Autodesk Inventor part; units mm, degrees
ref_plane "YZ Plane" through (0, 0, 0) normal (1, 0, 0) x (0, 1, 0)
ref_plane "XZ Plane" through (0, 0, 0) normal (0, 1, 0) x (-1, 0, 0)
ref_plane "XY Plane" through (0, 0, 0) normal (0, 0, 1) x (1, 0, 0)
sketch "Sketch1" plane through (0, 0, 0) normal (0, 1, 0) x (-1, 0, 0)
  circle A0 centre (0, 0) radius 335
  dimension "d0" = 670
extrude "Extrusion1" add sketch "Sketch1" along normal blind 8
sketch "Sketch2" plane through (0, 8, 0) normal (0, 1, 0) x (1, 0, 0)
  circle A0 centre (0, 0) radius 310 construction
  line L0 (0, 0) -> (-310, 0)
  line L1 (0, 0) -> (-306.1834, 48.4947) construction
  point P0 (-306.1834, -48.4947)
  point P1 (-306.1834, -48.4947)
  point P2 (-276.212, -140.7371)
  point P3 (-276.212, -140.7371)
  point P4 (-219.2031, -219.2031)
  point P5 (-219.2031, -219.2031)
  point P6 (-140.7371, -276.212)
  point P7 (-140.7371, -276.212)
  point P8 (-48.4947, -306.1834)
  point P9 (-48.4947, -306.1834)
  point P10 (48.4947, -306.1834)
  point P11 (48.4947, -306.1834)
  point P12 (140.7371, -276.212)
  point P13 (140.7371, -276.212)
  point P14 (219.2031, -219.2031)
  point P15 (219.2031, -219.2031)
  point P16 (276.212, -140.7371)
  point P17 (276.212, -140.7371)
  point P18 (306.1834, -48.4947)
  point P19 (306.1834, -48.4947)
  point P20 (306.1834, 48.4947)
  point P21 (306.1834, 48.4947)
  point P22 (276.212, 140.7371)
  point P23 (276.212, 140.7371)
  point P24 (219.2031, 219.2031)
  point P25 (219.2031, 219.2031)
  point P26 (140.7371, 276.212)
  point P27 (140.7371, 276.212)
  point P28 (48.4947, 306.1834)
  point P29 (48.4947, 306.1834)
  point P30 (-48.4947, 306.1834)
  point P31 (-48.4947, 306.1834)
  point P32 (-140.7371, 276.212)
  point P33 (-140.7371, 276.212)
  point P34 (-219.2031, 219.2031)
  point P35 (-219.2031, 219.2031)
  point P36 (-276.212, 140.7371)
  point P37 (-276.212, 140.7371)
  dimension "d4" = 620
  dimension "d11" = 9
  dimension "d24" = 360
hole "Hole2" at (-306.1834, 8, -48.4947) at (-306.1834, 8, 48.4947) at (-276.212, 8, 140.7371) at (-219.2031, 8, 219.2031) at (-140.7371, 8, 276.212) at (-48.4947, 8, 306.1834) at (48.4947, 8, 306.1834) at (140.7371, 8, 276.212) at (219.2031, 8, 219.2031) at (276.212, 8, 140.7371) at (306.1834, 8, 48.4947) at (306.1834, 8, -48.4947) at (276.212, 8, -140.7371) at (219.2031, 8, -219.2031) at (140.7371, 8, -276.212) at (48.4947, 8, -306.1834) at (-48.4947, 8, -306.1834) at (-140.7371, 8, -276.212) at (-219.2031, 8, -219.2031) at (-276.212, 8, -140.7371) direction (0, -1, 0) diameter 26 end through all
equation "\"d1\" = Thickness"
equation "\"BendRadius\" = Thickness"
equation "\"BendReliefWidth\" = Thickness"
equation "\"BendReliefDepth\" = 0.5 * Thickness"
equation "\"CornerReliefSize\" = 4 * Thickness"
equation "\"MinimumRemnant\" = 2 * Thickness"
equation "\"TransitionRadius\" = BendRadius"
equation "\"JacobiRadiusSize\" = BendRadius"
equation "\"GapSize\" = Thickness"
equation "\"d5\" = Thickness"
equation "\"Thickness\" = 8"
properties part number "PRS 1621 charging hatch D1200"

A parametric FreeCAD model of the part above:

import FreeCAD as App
import Part
import Sketcher
Q = App.Units.Quantity

doc = App.newDocument("Part")
params = doc.addObject("Spreadsheet::Sheet", "Params")
for row, (alias, value) in enumerate([
    ("sketch1_diameter", "670 mm"),
    ("pad1_length", "8 mm"),
    ("sketch2_diameter", "26 mm"),
    ("hole_diameter", "26 mm"),
], start=1):
    params.set(f"A{row}", alias)
    params.set(f"B{row}", "=" + value)
    params.setAlias(f"B{row}", alias)

body = doc.addObject("PartDesign::Body", "Body")

# Sketch on XZ plane
sketch1 = body.newObject("Sketcher::SketchObject", "Sketch")
sketch1.AttachmentSupport = (doc.getObject("XZ_Plane"), [""])
sketch1.MapMode = "FlatFace"
sketch1.addGeometry(Part.Circle(App.Vector(0, 0, 0), App.Vector(0, 0, 1), 335), False)
sketch1.addConstraint(Sketcher.Constraint("Coincident", 0, 3, -1, 1))
sketch1.addConstraint(Sketcher.Constraint("Diameter", 0, Q("670 mm")))
sketch1.setExpression("Constraints[1]", "Params.sketch1_diameter")
pad1 = body.newObject("PartDesign::Pad", "Pad")
pad1.Profile = sketch1
pad1.setExpression("Length", "Params.pad1_length")
pad1.Reversed = True

# Sketch on XZ plane
sketch2 = body.newObject("Sketcher::SketchObject", "Sketch001")
sketch2.AttachmentSupport = (doc.getObject("XZ_Plane"), [""])
sketch2.MapMode = "FlatFace"
sketch2.AttachmentOffset = App.Placement(App.Vector(0, 0, -8), App.Rotation())
sketch2.addGeometry(Part.Circle(App.Vector(-306, -48, 0), App.Vector(0, 0, 1), 13), False)
sketch2.addGeometry(Part.Circle(App.Vector(-306, 48, 0), App.Vector(0, 0, 1), 13), False)
sketch2.addGeometry(Part.Circle(App.Vector(-276, 141, 0), App.Vector(0, 0, 1), 13), False)
sketch2.addGeometry(Part.Circle(App.Vector(-219, 219, 0), App.Vector(0, 0, 1), 13), False)
sketch2.addGeometry(Part.Circle(App.Vector(-141, 276, 0), App.Vector(0, 0, 1), 13), False)
sketch2.addGeometry(Part.Circle(App.Vector(-48, 306, 0), App.Vector(0, 0, 1), 13), False)
sketch2.addGeometry(Part.Circle(App.Vector(48, 306, 0), App.Vector(0, 0, 1), 13), False)
sketch2.addGeometry(Part.Circle(App.Vector(141, 276, 0), App.Vector(0, 0, 1), 13), False)
sketch2.addGeometry(Part.Circle(App.Vector(219, 219, 0), App.Vector(0, 0, 1), 13), False)
sketch2.addGeometry(Part.Circle(App.Vector(276, 141, 0), App.Vector(0, 0, 1), 13), False)
sketch2.addGeometry(Part.Circle(App.Vector(306, 48, 0), App.Vector(0, 0, 1), 13), False)
sketch2.addGeometry(Part.Circle(App.Vector(306, -48, 0), App.Vector(0, 0, 1), 13), False)
sketch2.addGeometry(Part.Circle(App.Vector(276, -141, 0), App.Vector(0, 0, 1), 13), False)
sketch2.addGeometry(Part.Circle(App.Vector(219, -219, 0), App.Vector(0, 0, 1), 13), False)
sketch2.addGeometry(Part.Circle(App.Vector(141, -276, 0), App.Vector(0, 0, 1), 13), False)
sketch2.addGeometry(Part.Circle(App.Vector(48, -306, 0), App.Vector(0, 0, 1), 13), False)
sketch2.addGeometry(Part.Circle(App.Vector(-48, -306, 0), App.Vector(0, 0, 1), 13), False)
sketch2.addGeometry(Part.Circle(App.Vector(-141, -276, 0), App.Vector(0, 0, 1), 13), False)
sketch2.addGeometry(Part.Circle(App.Vector(-219, -219, 0), App.Vector(0, 0, 1), 13), False)
sketch2.addGeometry(Part.Circle(App.Vector(-276, -141, 0), App.Vector(0, 0, 1), 13), False)
sketch2.addConstraint(Sketcher.Constraint("Equal", 0, 1))
sketch2.addConstraint(Sketcher.Constraint("Equal", 1, 2))
sketch2.addConstraint(Sketcher.Constraint("Equal", 2, 3))
sketch2.addConstraint(Sketcher.Constraint("Equal", 3, 4))
sketch2.addConstraint(Sketcher.Constraint("Equal", 4, 5))
sketch2.addConstraint(Sketcher.Constraint("Equal", 5, 6))
sketch2.addConstraint(Sketcher.Constraint("Equal", 6, 7))
sketch2.addConstraint(Sketcher.Constraint("Equal", 7, 8))
sketch2.addConstraint(Sketcher.Constraint("Equal", 8, 9))
sketch2.addConstraint(Sketcher.Constraint("Equal", 9, 10))
sketch2.addConstraint(Sketcher.Constraint("Equal", 10, 11))
sketch2.addConstraint(Sketcher.Constraint("Equal", 11, 12))
sketch2.addConstraint(Sketcher.Constraint("Equal", 12, 13))
sketch2.addConstraint(Sketcher.Constraint("Equal", 13, 14))
sketch2.addConstraint(Sketcher.Constraint("Equal", 14, 15))
sketch2.addConstraint(Sketcher.Constraint("Equal", 15, 16))
sketch2.addConstraint(Sketcher.Constraint("Equal", 16, 17))
sketch2.addConstraint(Sketcher.Constraint("Equal", 17, 18))
sketch2.addConstraint(Sketcher.Constraint("Equal", 18, 19))
sketch2.addConstraint(Sketcher.Constraint("Symmetric", 0, 3, 10, 3, -1, 1))
sketch2.addConstraint(Sketcher.Constraint("Symmetric", 1, 3, 11, 3, -1, 1))
sketch2.addConstraint(Sketcher.Constraint("Symmetric", 2, 3, 12, 3, -1, 1))
sketch2.addConstraint(Sketcher.Constraint("Symmetric", 3, 3, 13, 3, -1, 1))
sketch2.addConstraint(Sketcher.Constraint("Symmetric", 4, 3, 14, 3, -1, 1))
sketch2.addConstraint(Sketcher.Constraint("Symmetric", 5, 3, 15, 3, -1, 1))
sketch2.addConstraint(Sketcher.Constraint("Symmetric", 6, 3, 16, 3, -1, 1))
sketch2.addConstraint(Sketcher.Constraint("Symmetric", 7, 3, 17, 3, -1, 1))
sketch2.addConstraint(Sketcher.Constraint("Symmetric", 8, 3, 18, 3, -1, 1))
sketch2.addConstraint(Sketcher.Constraint("Symmetric", 9, 3, 19, 3, -1, 1))
sketch2.addConstraint(Sketcher.Constraint("Symmetric", 5, 3, 6, 3, -2))
sketch2.addConstraint(Sketcher.Constraint("Symmetric", 4, 3, 7, 3, -2))
sketch2.addConstraint(Sketcher.Constraint("Symmetric", 3, 3, 8, 3, -2))
sketch2.addConstraint(Sketcher.Constraint("Symmetric", 2, 3, 9, 3, -2))
sketch2.addConstraint(Sketcher.Constraint("Symmetric", 1, 3, 10, 3, -2))
sketch2.addConstraint(Sketcher.Constraint("Diameter", 0, Q("26 mm")))
sketch2.addConstraint(Sketcher.Constraint("DistanceX", 2, 3, -1, 1, Q("276.212 mm")))
sketch2.addConstraint(Sketcher.Constraint("DistanceY", -1, 1, 2, 3, Q("140.737 mm")))
sketch2.addConstraint(Sketcher.Constraint("DistanceX", 3, 3, -1, 1, Q("219.203 mm")))
sketch2.addConstraint(Sketcher.Constraint("DistanceY", -1, 1, 3, 3, Q("219.203 mm")))
sketch2.addConstraint(Sketcher.Constraint("DistanceX", 4, 3, -1, 1, Q("140.737 mm")))
sketch2.addConstraint(Sketcher.Constraint("DistanceY", -1, 1, 4, 3, Q("276.212 mm")))
sketch2.addConstraint(Sketcher.Constraint("DistanceY", 0, 3, 5, 3, Q("354.678 mm")))
sketch2.addConstraint(Sketcher.Constraint("DistanceX", 1, 3, 6, 3, Q("354.678 mm")))
sketch2.addConstraint(Sketcher.Constraint("DistanceX", 0, 3, -1, 1, Q("306.1834 mm")))
sketch2.addConstraint(Sketcher.Constraint("DistanceY", 0, 3, -1, 1, Q("48.4947 mm")))
sketch2.setExpression("Constraints[34]", "Params.sketch2_diameter")
doc.recompute()
hole = body.newObject("PartDesign::Hole", "Hole")
hole.Profile = sketch2
hole.ThreadType = "None"
hole.setExpression("Diameter", "Params.hole_diameter")
hole.DepthType = "ThroughAll"
hole.Reversed = True

doc.recompute()
